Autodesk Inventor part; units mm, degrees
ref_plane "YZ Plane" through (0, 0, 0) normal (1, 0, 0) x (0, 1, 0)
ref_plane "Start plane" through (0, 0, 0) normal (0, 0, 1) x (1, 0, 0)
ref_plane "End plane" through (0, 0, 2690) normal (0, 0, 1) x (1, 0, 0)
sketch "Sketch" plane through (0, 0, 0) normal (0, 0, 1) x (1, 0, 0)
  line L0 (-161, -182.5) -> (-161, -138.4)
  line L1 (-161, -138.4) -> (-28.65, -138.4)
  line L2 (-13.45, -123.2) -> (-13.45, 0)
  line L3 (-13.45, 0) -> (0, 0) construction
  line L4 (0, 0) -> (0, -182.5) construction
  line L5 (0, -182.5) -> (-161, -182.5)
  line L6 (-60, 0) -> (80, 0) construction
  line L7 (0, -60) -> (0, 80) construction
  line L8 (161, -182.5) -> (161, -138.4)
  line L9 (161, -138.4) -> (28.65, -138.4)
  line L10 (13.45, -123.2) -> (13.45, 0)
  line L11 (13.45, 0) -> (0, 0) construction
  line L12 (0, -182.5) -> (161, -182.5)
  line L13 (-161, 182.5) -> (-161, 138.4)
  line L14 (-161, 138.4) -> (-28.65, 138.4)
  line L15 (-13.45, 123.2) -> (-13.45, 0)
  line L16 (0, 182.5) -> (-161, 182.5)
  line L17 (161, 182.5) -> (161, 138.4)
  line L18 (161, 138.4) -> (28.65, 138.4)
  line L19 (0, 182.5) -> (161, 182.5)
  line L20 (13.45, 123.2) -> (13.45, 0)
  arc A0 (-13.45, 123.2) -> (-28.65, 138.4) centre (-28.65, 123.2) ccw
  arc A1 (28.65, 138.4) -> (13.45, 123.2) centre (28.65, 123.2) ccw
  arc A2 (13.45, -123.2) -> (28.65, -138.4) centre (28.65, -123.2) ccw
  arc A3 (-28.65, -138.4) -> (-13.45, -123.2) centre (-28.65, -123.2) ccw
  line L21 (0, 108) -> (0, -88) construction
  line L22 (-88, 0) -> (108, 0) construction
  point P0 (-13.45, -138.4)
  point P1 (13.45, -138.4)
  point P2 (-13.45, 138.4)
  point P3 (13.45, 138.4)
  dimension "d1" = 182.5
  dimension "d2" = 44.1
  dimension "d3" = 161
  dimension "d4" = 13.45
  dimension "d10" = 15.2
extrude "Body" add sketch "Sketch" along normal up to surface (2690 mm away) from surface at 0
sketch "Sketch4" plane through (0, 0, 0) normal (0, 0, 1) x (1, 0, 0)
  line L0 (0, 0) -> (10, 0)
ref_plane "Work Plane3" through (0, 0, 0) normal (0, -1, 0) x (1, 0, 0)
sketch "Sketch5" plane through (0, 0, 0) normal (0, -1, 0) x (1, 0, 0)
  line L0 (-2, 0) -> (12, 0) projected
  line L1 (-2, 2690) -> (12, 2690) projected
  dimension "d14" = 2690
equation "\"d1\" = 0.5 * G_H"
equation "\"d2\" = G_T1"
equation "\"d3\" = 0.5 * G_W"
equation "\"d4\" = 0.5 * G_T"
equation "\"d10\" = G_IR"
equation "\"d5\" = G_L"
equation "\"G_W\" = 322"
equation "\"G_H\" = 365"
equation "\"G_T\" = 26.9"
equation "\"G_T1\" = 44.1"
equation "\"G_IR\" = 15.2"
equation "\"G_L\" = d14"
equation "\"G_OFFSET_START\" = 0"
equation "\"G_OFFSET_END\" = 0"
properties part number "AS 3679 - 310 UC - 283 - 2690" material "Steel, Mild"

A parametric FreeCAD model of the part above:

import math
import FreeCAD as App
import Part
import Sketcher

doc = App.newDocument("Part")
body = doc.addObject("PartDesign::Body", "Body")

sketch1 = body.newObject("Sketcher::SketchObject", "Sketch")
sketch1.AttachmentSupport = (doc.getObject("XY_Plane"), [""])
sketch1.MapMode = "FlatFace"
sketch1.addGeometry([
    Part.LineSegment(App.Vector(-161, -138, 0), App.Vector(-161, -182, 0)),
    Part.LineSegment(App.Vector(-161, -182, 0), App.Vector(161, -182, 0)),
    Part.LineSegment(App.Vector(161, -182, 0), App.Vector(161, -138, 0)),
    Part.LineSegment(App.Vector(161, -138, 0), App.Vector(29, -138, 0)),
    Part.ArcOfCircle(Part.Circle(App.Vector(29, -123, 0), App.Vector(0, 0, 1), 15), math.radians(180), math.radians(270)),
    Part.LineSegment(App.Vector(13, -123, 0), App.Vector(13, 123, 0)),
    Part.ArcOfCircle(Part.Circle(App.Vector(29, 123, 0), App.Vector(0, 0, 1), 15), math.radians(90), math.radians(180)),
    Part.LineSegment(App.Vector(29, 138, 0), App.Vector(161, 138, 0)),
    Part.LineSegment(App.Vector(161, 138, 0), App.Vector(161, 182, 0)),
    Part.LineSegment(App.Vector(161, 182, 0), App.Vector(-161, 182, 0)),
    Part.LineSegment(App.Vector(-161, 182, 0), App.Vector(-161, 138, 0)),
    Part.LineSegment(App.Vector(-161, 138, 0), App.Vector(-29, 138, 0)),
    Part.ArcOfCircle(Part.Circle(App.Vector(-29, 123, 0), App.Vector(0, 0, 1), 15), math.radians(0), math.radians(90)),
    Part.LineSegment(App.Vector(-13, 123, 0), App.Vector(-13, -123, 0)),
    Part.ArcOfCircle(Part.Circle(App.Vector(-29, -123, 0), App.Vector(0, 0, 1), 15), math.radians(-90), math.radians(0)),
    Part.LineSegment(App.Vector(-29, -138, 0), App.Vector(-161, -138, 0)),
], False)
sketch1.addConstraint([
    Sketcher.Constraint("Coincident", 0, 2, 1, 1),
    Sketcher.Constraint("Coincident", 1, 2, 2, 1),
    Sketcher.Constraint("Coincident", 2, 2, 3, 1),
    Sketcher.Constraint("Tangent", 3, 2, 4, 2),
    Sketcher.Constraint("Tangent", 4, 1, 5, 1),
    Sketcher.Constraint("Tangent", 5, 2, 6, 2),
    Sketcher.Constraint("Tangent", 6, 1, 7, 1),
    Sketcher.Constraint("Coincident", 7, 2, 8, 1),
    Sketcher.Constraint("Coincident", 8, 2, 9, 1),
    Sketcher.Constraint("Coincident", 9, 2, 10, 1),
    Sketcher.Constraint("Coincident", 10, 2, 11, 1),
    Sketcher.Constraint("Tangent", 11, 2, 12, 2),
    Sketcher.Constraint("Tangent", 12, 1, 13, 1),
    Sketcher.Constraint("Tangent", 13, 2, 14, 2),
    Sketcher.Constraint("Tangent", 14, 1, 15, 1),
    Sketcher.Constraint("Coincident", 15, 2, 0, 1),
    Sketcher.Constraint("Vertical", 0),
    Sketcher.Constraint("Horizontal", 1),
    Sketcher.Constraint("Vertical", 2),
    Sketcher.Constraint("Horizontal", 3),
    Sketcher.Constraint("Vertical", 5),
    Sketcher.Constraint("Horizontal", 7),
    Sketcher.Constraint("Vertical", 8),
    Sketcher.Constraint("Horizontal", 9),
    Sketcher.Constraint("Vertical", 10),
    Sketcher.Constraint("Horizontal", 11),
    Sketcher.Constraint("Vertical", 13),
    Sketcher.Constraint("Horizontal", 15),
    Sketcher.Constraint("Equal", 4, 6),
    Sketcher.Constraint("Equal", 6, 12),
    Sketcher.Constraint("Equal", 12, 14),
    Sketcher.Constraint("Symmetric", 4, 3, 12, 3, -1, 1),
    Sketcher.Constraint("Symmetric", 0, 2, 8, 2, -1, 1),
    Sketcher.Constraint("Symmetric", 7, 2, 10, 2, -2),
    Sketcher.Constraint("Symmetric", 2, 2, 15, 2, -2),
    Sketcher.Constraint("Radius", 4, 15.2),
    Sketcher.Constraint("DistanceY", 0, 2, 0, 1, 44.1),
    Sketcher.Constraint("DistanceX", 0, 2, -1, 1, 161.0),
    Sketcher.Constraint("DistanceY", 0, 2, -1, 1, 182.5),
    Sketcher.Constraint("DistanceX", -1, 1, 4, 1, 13.45),
])
pad1 = body.newObject("PartDesign::Pad", "Pad")
pad1.Profile = sketch1
pad1.Length = 2690

doc.recompute()
